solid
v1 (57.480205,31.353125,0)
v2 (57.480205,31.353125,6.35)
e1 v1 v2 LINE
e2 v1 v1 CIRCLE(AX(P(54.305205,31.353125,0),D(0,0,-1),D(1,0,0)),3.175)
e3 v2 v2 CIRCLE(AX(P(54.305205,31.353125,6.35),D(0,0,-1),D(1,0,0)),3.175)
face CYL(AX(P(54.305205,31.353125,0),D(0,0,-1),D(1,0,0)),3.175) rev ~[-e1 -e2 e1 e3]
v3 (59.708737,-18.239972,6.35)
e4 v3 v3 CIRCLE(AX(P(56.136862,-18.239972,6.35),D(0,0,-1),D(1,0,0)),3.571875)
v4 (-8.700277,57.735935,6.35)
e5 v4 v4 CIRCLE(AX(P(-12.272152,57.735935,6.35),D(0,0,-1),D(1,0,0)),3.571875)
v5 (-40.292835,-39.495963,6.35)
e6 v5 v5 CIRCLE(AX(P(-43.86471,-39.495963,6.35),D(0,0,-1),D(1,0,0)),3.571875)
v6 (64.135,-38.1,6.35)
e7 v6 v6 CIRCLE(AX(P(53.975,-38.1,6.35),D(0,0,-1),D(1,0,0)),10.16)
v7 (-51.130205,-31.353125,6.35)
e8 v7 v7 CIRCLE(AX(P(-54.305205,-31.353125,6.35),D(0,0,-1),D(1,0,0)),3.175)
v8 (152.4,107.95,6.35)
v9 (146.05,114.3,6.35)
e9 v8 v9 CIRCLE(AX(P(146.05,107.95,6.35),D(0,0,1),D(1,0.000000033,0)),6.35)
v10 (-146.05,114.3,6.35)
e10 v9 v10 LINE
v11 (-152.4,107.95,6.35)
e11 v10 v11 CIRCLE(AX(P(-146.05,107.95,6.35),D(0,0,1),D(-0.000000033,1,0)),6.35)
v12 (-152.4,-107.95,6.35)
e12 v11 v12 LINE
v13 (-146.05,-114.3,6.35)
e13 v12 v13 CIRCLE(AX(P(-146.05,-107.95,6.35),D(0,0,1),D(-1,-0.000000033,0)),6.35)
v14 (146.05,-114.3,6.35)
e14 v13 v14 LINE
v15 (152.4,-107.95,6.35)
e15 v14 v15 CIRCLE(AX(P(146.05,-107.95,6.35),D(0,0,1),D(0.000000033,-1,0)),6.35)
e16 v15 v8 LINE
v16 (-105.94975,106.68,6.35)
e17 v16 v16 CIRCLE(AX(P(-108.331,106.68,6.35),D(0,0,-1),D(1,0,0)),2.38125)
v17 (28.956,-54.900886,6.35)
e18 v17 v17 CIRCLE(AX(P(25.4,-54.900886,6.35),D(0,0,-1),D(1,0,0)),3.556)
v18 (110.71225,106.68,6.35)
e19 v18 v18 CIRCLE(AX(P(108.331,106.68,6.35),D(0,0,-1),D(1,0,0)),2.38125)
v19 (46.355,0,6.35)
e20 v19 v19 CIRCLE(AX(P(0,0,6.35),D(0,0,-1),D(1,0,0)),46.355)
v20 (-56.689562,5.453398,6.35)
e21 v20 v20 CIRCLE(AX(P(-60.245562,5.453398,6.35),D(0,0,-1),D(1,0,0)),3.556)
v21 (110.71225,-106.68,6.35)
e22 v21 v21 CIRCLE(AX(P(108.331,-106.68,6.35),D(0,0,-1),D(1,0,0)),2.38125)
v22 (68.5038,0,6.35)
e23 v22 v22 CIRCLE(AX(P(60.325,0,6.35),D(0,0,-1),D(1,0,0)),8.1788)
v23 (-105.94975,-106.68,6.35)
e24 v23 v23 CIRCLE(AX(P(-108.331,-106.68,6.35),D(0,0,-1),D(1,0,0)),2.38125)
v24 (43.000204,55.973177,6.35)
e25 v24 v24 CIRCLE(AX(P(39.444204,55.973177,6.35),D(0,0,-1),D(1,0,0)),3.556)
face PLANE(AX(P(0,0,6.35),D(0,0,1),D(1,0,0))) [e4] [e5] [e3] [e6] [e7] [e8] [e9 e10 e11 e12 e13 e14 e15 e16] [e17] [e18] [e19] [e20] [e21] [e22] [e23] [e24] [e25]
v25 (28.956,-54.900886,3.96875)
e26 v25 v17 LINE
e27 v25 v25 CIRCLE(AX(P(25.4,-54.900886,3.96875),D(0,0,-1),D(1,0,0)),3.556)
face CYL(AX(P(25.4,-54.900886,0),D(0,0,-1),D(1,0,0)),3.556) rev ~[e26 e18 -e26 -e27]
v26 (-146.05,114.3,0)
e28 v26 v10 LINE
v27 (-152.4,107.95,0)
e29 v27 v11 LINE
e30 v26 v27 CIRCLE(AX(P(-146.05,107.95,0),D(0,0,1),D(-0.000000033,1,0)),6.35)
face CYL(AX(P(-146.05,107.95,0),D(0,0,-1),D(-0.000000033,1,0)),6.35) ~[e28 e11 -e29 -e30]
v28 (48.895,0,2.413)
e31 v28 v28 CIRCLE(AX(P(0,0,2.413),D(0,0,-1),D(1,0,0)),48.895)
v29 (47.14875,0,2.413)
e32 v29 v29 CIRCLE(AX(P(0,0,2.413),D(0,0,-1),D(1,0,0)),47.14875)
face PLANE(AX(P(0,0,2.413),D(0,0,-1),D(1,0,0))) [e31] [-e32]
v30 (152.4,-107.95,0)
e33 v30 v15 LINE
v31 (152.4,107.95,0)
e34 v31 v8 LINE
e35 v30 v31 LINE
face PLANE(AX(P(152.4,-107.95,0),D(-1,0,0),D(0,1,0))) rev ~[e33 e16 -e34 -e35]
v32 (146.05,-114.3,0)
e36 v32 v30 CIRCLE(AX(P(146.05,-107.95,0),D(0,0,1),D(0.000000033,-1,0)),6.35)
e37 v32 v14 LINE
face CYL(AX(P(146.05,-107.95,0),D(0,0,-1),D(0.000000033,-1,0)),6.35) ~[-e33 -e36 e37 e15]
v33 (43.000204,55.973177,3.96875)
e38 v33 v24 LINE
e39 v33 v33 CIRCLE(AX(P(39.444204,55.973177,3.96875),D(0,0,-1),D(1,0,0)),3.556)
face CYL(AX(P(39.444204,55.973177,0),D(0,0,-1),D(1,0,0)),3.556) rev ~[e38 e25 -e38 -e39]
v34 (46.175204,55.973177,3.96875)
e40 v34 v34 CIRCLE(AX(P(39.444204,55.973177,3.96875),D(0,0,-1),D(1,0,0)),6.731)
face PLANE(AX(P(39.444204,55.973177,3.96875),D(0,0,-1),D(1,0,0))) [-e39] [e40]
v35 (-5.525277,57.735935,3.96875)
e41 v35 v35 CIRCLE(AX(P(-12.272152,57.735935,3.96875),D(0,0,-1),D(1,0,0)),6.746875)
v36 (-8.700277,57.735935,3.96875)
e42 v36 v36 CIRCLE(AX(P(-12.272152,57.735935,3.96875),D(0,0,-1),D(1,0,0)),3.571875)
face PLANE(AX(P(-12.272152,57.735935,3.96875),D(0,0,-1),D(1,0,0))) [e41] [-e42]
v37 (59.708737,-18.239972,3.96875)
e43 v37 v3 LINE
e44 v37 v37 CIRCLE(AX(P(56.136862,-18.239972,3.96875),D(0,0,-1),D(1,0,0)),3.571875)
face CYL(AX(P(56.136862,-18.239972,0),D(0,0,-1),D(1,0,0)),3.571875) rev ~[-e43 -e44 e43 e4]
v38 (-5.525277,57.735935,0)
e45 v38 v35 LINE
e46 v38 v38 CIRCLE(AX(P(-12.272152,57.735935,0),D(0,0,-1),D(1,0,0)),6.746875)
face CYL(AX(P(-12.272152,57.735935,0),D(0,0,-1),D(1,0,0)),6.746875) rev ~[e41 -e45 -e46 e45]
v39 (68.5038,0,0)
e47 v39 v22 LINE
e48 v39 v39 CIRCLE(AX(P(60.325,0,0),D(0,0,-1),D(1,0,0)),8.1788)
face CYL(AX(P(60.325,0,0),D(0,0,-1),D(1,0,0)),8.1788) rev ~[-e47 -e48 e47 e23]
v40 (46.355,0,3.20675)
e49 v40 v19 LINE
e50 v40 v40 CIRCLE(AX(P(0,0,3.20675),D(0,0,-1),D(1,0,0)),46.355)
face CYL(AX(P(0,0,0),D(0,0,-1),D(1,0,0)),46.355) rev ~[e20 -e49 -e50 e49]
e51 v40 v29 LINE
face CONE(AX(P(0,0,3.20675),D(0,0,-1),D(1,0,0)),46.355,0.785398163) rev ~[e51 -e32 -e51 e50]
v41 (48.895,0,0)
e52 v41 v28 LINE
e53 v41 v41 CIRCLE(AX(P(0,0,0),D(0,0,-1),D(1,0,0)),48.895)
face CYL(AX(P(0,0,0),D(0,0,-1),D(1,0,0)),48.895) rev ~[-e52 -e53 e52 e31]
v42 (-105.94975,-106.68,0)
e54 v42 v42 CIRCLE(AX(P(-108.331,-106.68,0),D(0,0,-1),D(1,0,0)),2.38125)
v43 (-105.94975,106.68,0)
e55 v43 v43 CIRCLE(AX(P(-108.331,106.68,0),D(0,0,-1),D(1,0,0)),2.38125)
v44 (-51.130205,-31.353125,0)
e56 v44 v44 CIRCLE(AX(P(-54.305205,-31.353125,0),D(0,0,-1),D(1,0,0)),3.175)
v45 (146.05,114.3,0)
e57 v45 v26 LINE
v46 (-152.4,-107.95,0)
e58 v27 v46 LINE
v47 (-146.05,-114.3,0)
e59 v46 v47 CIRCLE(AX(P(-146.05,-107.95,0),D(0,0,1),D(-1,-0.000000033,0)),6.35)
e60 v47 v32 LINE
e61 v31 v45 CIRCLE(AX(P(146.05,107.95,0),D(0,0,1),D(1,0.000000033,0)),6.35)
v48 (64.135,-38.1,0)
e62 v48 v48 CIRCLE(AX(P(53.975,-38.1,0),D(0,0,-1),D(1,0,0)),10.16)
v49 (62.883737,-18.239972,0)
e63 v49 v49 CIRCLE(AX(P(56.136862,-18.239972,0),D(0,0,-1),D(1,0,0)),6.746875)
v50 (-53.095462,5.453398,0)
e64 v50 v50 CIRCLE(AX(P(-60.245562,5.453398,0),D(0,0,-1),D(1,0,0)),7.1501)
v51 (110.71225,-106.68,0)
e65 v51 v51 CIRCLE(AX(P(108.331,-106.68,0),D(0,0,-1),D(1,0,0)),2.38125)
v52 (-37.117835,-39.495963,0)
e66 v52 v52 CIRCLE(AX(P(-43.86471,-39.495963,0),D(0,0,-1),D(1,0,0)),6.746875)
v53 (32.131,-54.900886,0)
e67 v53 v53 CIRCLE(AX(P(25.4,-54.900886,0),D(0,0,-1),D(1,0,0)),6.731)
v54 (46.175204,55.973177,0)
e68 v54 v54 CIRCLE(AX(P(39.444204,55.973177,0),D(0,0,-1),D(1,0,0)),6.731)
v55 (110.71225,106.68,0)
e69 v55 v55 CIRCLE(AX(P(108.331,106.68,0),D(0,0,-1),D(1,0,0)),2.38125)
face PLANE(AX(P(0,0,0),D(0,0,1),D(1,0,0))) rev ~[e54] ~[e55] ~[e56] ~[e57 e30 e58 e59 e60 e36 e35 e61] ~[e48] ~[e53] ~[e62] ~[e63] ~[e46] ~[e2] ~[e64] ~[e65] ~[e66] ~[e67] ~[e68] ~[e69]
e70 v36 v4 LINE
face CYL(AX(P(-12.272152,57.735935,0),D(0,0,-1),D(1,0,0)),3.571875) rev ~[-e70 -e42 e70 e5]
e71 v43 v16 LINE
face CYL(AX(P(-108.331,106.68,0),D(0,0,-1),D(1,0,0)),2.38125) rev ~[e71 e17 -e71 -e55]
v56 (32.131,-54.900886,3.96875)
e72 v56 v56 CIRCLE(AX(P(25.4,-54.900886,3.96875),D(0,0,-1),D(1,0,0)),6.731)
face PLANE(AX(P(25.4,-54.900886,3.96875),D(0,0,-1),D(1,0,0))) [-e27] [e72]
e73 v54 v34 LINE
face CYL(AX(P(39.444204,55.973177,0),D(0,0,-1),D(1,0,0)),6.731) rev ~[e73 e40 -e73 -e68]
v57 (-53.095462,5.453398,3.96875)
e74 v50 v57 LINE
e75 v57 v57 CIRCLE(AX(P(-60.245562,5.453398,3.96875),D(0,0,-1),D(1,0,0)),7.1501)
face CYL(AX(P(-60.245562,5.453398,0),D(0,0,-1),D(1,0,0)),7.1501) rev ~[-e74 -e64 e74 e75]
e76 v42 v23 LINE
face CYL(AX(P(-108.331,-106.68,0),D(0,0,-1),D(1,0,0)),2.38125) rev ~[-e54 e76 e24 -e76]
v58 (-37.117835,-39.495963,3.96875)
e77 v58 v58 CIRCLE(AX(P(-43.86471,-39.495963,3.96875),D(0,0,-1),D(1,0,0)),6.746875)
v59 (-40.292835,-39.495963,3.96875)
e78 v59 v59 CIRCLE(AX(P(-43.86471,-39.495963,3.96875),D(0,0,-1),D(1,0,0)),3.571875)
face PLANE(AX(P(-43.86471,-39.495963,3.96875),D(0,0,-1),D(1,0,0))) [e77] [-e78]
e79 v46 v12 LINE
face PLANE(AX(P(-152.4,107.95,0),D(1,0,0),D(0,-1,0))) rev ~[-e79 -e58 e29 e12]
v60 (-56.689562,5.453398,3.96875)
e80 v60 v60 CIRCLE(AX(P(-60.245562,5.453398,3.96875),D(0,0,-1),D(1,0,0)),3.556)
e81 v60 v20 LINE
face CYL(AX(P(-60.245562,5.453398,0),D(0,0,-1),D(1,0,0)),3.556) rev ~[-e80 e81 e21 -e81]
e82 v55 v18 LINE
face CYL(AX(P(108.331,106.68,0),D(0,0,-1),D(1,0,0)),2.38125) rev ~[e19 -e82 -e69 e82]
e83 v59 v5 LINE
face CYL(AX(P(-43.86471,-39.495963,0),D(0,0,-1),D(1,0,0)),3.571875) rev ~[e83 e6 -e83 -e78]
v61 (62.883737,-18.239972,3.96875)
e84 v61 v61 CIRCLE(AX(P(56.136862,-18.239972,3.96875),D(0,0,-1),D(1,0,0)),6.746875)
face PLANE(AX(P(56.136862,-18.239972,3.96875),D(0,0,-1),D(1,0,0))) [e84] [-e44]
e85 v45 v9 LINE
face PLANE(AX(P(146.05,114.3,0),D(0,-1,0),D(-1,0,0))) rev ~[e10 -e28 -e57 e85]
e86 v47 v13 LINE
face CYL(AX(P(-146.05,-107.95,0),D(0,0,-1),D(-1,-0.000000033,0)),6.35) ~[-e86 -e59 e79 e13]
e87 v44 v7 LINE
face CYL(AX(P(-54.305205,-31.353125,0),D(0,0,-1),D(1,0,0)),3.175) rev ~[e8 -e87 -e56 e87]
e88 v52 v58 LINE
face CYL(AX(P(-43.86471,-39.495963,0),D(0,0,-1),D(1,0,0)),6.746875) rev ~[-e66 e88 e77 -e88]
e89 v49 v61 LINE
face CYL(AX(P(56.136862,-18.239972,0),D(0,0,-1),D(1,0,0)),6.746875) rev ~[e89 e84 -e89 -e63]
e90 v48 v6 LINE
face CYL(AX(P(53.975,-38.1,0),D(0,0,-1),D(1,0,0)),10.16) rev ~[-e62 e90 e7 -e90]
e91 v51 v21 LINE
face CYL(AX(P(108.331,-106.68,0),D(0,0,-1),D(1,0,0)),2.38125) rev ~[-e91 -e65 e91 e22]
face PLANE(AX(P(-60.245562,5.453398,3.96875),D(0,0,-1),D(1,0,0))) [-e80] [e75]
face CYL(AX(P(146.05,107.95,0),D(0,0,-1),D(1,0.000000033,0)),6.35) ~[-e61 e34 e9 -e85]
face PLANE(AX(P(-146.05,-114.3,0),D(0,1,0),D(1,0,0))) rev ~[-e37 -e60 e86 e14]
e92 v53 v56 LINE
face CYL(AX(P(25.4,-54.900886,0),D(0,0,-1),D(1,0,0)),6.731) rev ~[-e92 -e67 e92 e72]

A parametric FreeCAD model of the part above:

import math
import FreeCAD as App
import Part
import Sketcher
Q = App.Units.Quantity


def edges_at(feature, points):
    """Names of the edges that pass closest to the given points."""
    edges = feature.Shape.Edges
    near = lambda p: min(range(len(edges)), key=lambda i: edges[i].distToShape(Part.Vertex(*p))[0])
    return sorted({f"Edge{near(p) + 1}" for p in points})

doc = App.newDocument("Part")
params = doc.addObject("Spreadsheet::Sheet", "Params")
for row, (alias, value) in enumerate([
    ("sketch1_radius", "0.25 in"),
    ("sketch1_width", "11.5 in"),
    ("sketch1_height", "8.5 in"),
    ("pad1_length", "0.25 in"),
    ("sketch2_diameter", "0.8 in"),
    ("sketch2_diameter2", "3.65 in"),
    ("sketch2_diameter3", "0.25 in"),
    ("sketch2_diameter4", "0.28 in"),
    ("sketch2_diameter5", "0.644 in"),
    ("sketch3_diameter", "3.85 in"),
    ("pocket2_length", "0.095 in"),
    ("chamfer_size", "0.03125 in"),
    ("sketch4_diameter", "0.53 in"),
    ("sketch4_diameter2", "0.563 in"),
    ("pocket3_length", "0.15625 in"),
    ("sketch5_diameter", "0.28125 in"),
    ("sketch6_diameter", "0.53125 in"),
    ("pocket5_length", "0.15625 in"),
], start=1):
    params.set(f"A{row}", alias)
    params.set(f"B{row}", "=" + value)
    params.setAlias(f"B{row}", alias)

body = doc.addObject("PartDesign::Body", "Body")

sketch1 = body.newObject("Sketcher::SketchObject", "Sketch")
sketch1.AttachmentSupport = (doc.getObject("XY_Plane"), [""])
sketch1.MapMode = "FlatFace"
sketch1.addGeometry([
    Part.ArcOfCircle(Part.Circle(App.Vector(146, 108, 0), App.Vector(0, 0, 1), 6), math.radians(0), math.radians(90)),
    Part.LineSegment(App.Vector(146, 114, 0), App.Vector(-146, 114, 0)),
    Part.ArcOfCircle(Part.Circle(App.Vector(-146, 108, 0), App.Vector(0, 0, 1), 6), math.radians(90), math.radians(180)),
    Part.LineSegment(App.Vector(-152, 108, 0), App.Vector(-152, -108, 0)),
    Part.ArcOfCircle(Part.Circle(App.Vector(-146, -108, 0), App.Vector(0, 0, 1), 6), math.radians(-180), math.radians(-90)),
    Part.LineSegment(App.Vector(-146, -114, 0), App.Vector(146, -114, 0)),
    Part.ArcOfCircle(Part.Circle(App.Vector(146, -108, 0), App.Vector(0, 0, 1), 6), math.radians(-90), math.radians(0)),
    Part.LineSegment(App.Vector(152, -108, 0), App.Vector(152, 108, 0)),
], False)
sketch1.addConstraint([
    Sketcher.Constraint("Tangent", 0, 2, 1, 1),
    Sketcher.Constraint("Tangent", 1, 2, 2, 1),
    Sketcher.Constraint("Tangent", 2, 2, 3, 1),
    Sketcher.Constraint("Tangent", 3, 2, 4, 1),
    Sketcher.Constraint("Tangent", 4, 2, 5, 1),
    Sketcher.Constraint("Tangent", 5, 2, 6, 1),
    Sketcher.Constraint("Tangent", 6, 2, 7, 1),
    Sketcher.Constraint("Tangent", 7, 2, 0, 1),
    Sketcher.Constraint("Horizontal", 1),
    Sketcher.Constraint("Vertical", 3),
    Sketcher.Constraint("Horizontal", 5),
    Sketcher.Constraint("Vertical", 7),
    Sketcher.Constraint("Equal", 0, 2),
    Sketcher.Constraint("Equal", 2, 4),
    Sketcher.Constraint("Equal", 4, 6),
    Sketcher.Constraint("Symmetric", 0, 3, 4, 3, -1, 1),
    Sketcher.Constraint("Radius", 0, Q("0.25 in")),
    Sketcher.Constraint("DistanceX", 1, 2, 1, 1, Q("11.5 in")),
    Sketcher.Constraint("DistanceY", 3, 2, 3, 1, Q("8.5 in")),
])
sketch1.setExpression("Constraints[16]", "Params.sketch1_radius")
sketch1.setExpression("Constraints[17]", "Params.sketch1_width")
sketch1.setExpression("Constraints[18]", "Params.sketch1_height")
pad1 = body.newObject("PartDesign::Pad", "Pad")
pad1.Profile = sketch1
pad1.setExpression("Length", "Params.pad1_length")

sketch2 = body.newObject("Sketcher::SketchObject", "Sketch001")
sketch2.AttachmentSupport = (doc.getObject("XY_Plane"), [""])
sketch2.MapMode = "FlatFace"
sketch2.addGeometry([
    Part.Circle(App.Vector(0, 0, 0), App.Vector(0, 0, 1), 46.4),
    Part.Circle(App.Vector(60.3, 0, 0), App.Vector(0, 0, 1), 8.2),
    Part.Circle(App.Vector(54, -38.1, 0), App.Vector(0, 0, 1), 10.2),
    Part.Circle(App.Vector(54.3, 31.4, 0), App.Vector(0, 0, 1), 3.2),
    Part.Circle(App.Vector(-54.3, -31.4, 0), App.Vector(0, 0, 1), 3.2),
    Part.Circle(App.Vector(25.4, -54.9, 0), App.Vector(0, 0, 1), 3.6),
    Part.Circle(App.Vector(-60.2, 5.5, 0), App.Vector(0, 0, 1), 3.6),
    Part.Circle(App.Vector(39.4, 56, 0), App.Vector(0, 0, 1), 3.6),
    Part.Circle(App.Vector(108.3, -106.7, 0), App.Vector(0, 0, 1), 2.4),
    Part.Circle(App.Vector(-108.3, -106.7, 0), App.Vector(0, 0, 1), 2.4),
    Part.Circle(App.Vector(-108.3, 106.7, 0), App.Vector(0, 0, 1), 2.4),
    Part.Circle(App.Vector(108.3, 106.7, 0), App.Vector(0, 0, 1), 2.4),
], False)
sketch2.addConstraint([
    Sketcher.Constraint("Coincident", 0, 3, -1, 1),
    Sketcher.Constraint("Equal", 3, 4),
    Sketcher.Constraint("Equal", 5, 6),
    Sketcher.Constraint("Equal", 6, 7),
    Sketcher.Constraint("Equal", 8, 9),
    Sketcher.Constraint("Equal", 9, 10),
    Sketcher.Constraint("Equal", 10, 11),
    Sketcher.Constraint("Symmetric", 3, 3, 4, 3, -1, 1),
    Sketcher.Constraint("Symmetric", 8, 3, 10, 3, -1, 1),
    Sketcher.Constraint("Symmetric", 9, 3, 11, 3, -1, 1),
    Sketcher.Constraint("Symmetric", 8, 3, 9, 3, -2),
    Sketcher.Constraint("PointOnObject", 1, 3, -1),
    Sketcher.Constraint("Diameter", 2, Q("0.8 in")),
    Sketcher.Constraint("Diameter", 0, Q("3.65 in")),
    Sketcher.Constraint("Diameter", 3, Q("0.25 in")),
    Sketcher.Constraint("Diameter", 5, Q("0.28 in")),
    Sketcher.Constraint("Diameter", 1, Q("0.644 in")),
    Sketcher.Constraint("Diameter", 8, Q("0.1875 in")),
    Sketcher.Constraint("DistanceX", -1, 1, 5, 3, Q("1 in")),
    Sketcher.Constraint("DistanceY", 2, 3, -1, 1, Q("1.5 in")),
    Sketcher.Constraint("DistanceY", 8, 3, -1, 1, Q("4.2 in")),
    Sketcher.Constraint("DistanceX", 2, 3, 1, 3, Q("0.25 in")),
    Sketcher.Constraint("DistanceX", 2, 3, 8, 3, Q("2.14 in")),
    Sketcher.Constraint("DistanceX", 9, 3, 2, 3, Q("6.39 in")),
    Sketcher.Constraint("DistanceX", -1, 1, 3, 3, Q("2.1380002 in")),
    Sketcher.Constraint("DistanceY", -1, 1, 3, 3, Q("1.234375 in")),
    Sketcher.Constraint("DistanceX", 7, 3, 3, 3, Q("14.861001 mm")),
    Sketcher.Constraint("DistanceY", 9, 3, 6, 3, Q("112.133398 mm")),
    Sketcher.Constraint("DistanceY", 5, 3, 4, 3, Q("23.547761 mm")),
    Sketcher.Constraint("DistanceX", 6, 3, 5, 3, Q("85.645562 mm")),
    Sketcher.Constraint("DistanceY", -1, 1, 7, 3, Q("55.973177 mm")),
])
sketch2.setExpression("Constraints[12]", "Params.sketch2_diameter")
sketch2.setExpression("Constraints[13]", "Params.sketch2_diameter2")
sketch2.setExpression("Constraints[14]", "Params.sketch2_diameter3")
sketch2.setExpression("Constraints[15]", "Params.sketch2_diameter4")
sketch2.setExpression("Constraints[16]", "Params.sketch2_diameter5")
pocket1 = body.newObject("PartDesign::Pocket", "Pocket")
pocket1.Profile = sketch2
pocket1.Type = "ThroughAll"
pocket1.Reversed = True

sketch3 = body.newObject("Sketcher::SketchObject", "Sketch002")
sketch3.AttachmentSupport = (doc.getObject("XY_Plane"), [""])
sketch3.MapMode = "FlatFace"
sketch3.addGeometry(Part.Circle(App.Vector(0, 0, 0), App.Vector(0, 0, 1), 49), False)
sketch3.addConstraint([
    Sketcher.Constraint("Coincident", 0, 3, -1, 1),
    Sketcher.Constraint("Diameter", 0, Q("3.85 in")),
])
sketch3.setExpression("Constraints[1]", "Params.sketch3_diameter")
pocket2 = body.newObject("PartDesign::Pocket", "Pocket001")
pocket2.Profile = sketch3
pocket2.setExpression("Length", "Params.pocket2_length")
pocket2.Reversed = True
doc.recompute()

chamfer = body.newObject("PartDesign::Chamfer", "Chamfer")
chamfer.Base = (pocket2, edges_at(pocket2, [(-46.355, 0, 2.413)]))
chamfer.setExpression("Size", "Params.chamfer_size")

sketch4 = body.newObject("Sketcher::SketchObject", "Sketch003")
sketch4.AttachmentSupport = (doc.getObject("XY_Plane"), [""])
sketch4.MapMode = "FlatFace"
sketch4.addGeometry([
    Part.Circle(App.Vector(39, 56, 0), App.Vector(0, 0, 1), 7),
    Part.Circle(App.Vector(-60, 5, 0), App.Vector(0, 0, 1), 7),
    Part.Circle(App.Vector(25, -55, 0), App.Vector(0, 0, 1), 7),
], False)
sketch4.addConstraint([
    Sketcher.Constraint("Equal", 0, 2),
    Sketcher.Constraint("Diameter", 0, Q("0.53 in")),
    Sketcher.Constraint("Diameter", 1, Q("0.563 in")),
    Sketcher.Constraint("DistanceX", -1, 1, 2, 3, Q("1 in")),
    Sketcher.Constraint("DistanceY", 1, 3, 0, 3, Q("50.519779 mm")),
    Sketcher.Constraint("DistanceX", 1, 3, 2, 3, Q("85.645562 mm")),
    Sketcher.Constraint("DistanceX", -1, 1, 0, 3, Q("39.444204 mm")),
    Sketcher.Constraint("DistanceY", -1, 1, 0, 3, Q("55.973177 mm")),
    Sketcher.Constraint("DistanceY", 2, 3, -1, 1, Q("54.900886 mm")),
])
sketch4.setExpression("Constraints[1]", "Params.sketch4_diameter")
sketch4.setExpression("Constraints[2]", "Params.sketch4_diameter2")
pocket3 = body.newObject("PartDesign::Pocket", "Pocket002")
pocket3.Profile = sketch4
pocket3.setExpression("Length", "Params.pocket3_length")
pocket3.Reversed = True

sketch5 = body.newObject("Sketcher::SketchObject", "Sketch004")
sketch5.AttachmentSupport = (doc.getObject("XY_Plane"), [""])
sketch5.MapMode = "FlatFace"
sketch5.addGeometry([
    Part.Circle(App.Vector(56.1, -18.2, 0), App.Vector(0, 0, 1), 3.6),
    Part.Circle(App.Vector(-12.3, 57.7, 0), App.Vector(0, 0, 1), 3.6),
    Part.Circle(App.Vector(-43.9, -39.5, 0), App.Vector(0, 0, 1), 3.6),
], False)
sketch5.addConstraint([
    Sketcher.Constraint("Equal", 0, 1),
    Sketcher.Constraint("Equal", 1, 2),
    Sketcher.Constraint("Diameter", 0, Q("0.28125 in")),
    Sketcher.Constraint("DistanceY", 2, 3, 1, 3, Q("97.231898 mm")),
    Sketcher.Constraint("DistanceX", 2, 3, -1, 1, Q("43.86471 mm")),
    Sketcher.Constraint("DistanceY", 2, 3, 0, 3, Q("21.255991 mm")),
    Sketcher.Constraint("DistanceX", 2, 3, 1, 3, Q("31.592558 mm")),
    Sketcher.Constraint("DistanceX", -1, 1, 0, 3, Q("56.136862 mm")),
    Sketcher.Constraint("DistanceY", 0, 3, -1, 1, Q("18.239972 mm")),
])
sketch5.setExpression("Constraints[2]", "Params.sketch5_diameter")
pocket4 = body.newObject("PartDesign::Pocket", "Pocket003")
pocket4.Profile = sketch5
pocket4.Type = "ThroughAll"
pocket4.Reversed = True

sketch6 = body.newObject("Sketcher::SketchObject", "Sketch005")
sketch6.AttachmentSupport = (doc.getObject("XY_Plane"), [""])
sketch6.MapMode = "FlatFace"
sketch6.addGeometry([
    Part.Circle(App.Vector(-12, 58, 0), App.Vector(0, 0, 1), 7),
    Part.Circle(App.Vector(56, -18, 0), App.Vector(0, 0, 1), 7),
    Part.Circle(App.Vector(-44, -39, 0), App.Vector(0, 0, 1), 7),
], False)
sketch6.addConstraint([
    Sketcher.Constraint("Equal", 0, 1),
    Sketcher.Constraint("Equal", 1, 2),
    Sketcher.Constraint("Diameter", 0, Q("0.53125 in")),
    Sketcher.Constraint("DistanceY", 2, 3, 0, 3, Q("97.231898 mm")),
    Sketcher.Constraint("DistanceX", 2, 3, -1, 1, Q("43.86471 mm")),
    Sketcher.Constraint("DistanceY", 2, 3, 1, 3, Q("21.255991 mm")),
    Sketcher.Constraint("DistanceX", 2, 3, 0, 3, Q("31.592558 mm")),
    Sketcher.Constraint("DistanceY", -1, 1, 0, 3, Q("57.735935 mm")),
    Sketcher.Constraint("DistanceX", -1, 1, 1, 3, Q("56.136862 mm")),
])
sketch6.setExpression("Constraints[2]", "Params.sketch6_diameter")
pocket5 = body.newObject("PartDesign::Pocket", "Pocket004")
pocket5.Profile = sketch6
pocket5.setExpression("Length", "Params.pocket5_length")
pocket5.Reversed = True

doc.recompute()
